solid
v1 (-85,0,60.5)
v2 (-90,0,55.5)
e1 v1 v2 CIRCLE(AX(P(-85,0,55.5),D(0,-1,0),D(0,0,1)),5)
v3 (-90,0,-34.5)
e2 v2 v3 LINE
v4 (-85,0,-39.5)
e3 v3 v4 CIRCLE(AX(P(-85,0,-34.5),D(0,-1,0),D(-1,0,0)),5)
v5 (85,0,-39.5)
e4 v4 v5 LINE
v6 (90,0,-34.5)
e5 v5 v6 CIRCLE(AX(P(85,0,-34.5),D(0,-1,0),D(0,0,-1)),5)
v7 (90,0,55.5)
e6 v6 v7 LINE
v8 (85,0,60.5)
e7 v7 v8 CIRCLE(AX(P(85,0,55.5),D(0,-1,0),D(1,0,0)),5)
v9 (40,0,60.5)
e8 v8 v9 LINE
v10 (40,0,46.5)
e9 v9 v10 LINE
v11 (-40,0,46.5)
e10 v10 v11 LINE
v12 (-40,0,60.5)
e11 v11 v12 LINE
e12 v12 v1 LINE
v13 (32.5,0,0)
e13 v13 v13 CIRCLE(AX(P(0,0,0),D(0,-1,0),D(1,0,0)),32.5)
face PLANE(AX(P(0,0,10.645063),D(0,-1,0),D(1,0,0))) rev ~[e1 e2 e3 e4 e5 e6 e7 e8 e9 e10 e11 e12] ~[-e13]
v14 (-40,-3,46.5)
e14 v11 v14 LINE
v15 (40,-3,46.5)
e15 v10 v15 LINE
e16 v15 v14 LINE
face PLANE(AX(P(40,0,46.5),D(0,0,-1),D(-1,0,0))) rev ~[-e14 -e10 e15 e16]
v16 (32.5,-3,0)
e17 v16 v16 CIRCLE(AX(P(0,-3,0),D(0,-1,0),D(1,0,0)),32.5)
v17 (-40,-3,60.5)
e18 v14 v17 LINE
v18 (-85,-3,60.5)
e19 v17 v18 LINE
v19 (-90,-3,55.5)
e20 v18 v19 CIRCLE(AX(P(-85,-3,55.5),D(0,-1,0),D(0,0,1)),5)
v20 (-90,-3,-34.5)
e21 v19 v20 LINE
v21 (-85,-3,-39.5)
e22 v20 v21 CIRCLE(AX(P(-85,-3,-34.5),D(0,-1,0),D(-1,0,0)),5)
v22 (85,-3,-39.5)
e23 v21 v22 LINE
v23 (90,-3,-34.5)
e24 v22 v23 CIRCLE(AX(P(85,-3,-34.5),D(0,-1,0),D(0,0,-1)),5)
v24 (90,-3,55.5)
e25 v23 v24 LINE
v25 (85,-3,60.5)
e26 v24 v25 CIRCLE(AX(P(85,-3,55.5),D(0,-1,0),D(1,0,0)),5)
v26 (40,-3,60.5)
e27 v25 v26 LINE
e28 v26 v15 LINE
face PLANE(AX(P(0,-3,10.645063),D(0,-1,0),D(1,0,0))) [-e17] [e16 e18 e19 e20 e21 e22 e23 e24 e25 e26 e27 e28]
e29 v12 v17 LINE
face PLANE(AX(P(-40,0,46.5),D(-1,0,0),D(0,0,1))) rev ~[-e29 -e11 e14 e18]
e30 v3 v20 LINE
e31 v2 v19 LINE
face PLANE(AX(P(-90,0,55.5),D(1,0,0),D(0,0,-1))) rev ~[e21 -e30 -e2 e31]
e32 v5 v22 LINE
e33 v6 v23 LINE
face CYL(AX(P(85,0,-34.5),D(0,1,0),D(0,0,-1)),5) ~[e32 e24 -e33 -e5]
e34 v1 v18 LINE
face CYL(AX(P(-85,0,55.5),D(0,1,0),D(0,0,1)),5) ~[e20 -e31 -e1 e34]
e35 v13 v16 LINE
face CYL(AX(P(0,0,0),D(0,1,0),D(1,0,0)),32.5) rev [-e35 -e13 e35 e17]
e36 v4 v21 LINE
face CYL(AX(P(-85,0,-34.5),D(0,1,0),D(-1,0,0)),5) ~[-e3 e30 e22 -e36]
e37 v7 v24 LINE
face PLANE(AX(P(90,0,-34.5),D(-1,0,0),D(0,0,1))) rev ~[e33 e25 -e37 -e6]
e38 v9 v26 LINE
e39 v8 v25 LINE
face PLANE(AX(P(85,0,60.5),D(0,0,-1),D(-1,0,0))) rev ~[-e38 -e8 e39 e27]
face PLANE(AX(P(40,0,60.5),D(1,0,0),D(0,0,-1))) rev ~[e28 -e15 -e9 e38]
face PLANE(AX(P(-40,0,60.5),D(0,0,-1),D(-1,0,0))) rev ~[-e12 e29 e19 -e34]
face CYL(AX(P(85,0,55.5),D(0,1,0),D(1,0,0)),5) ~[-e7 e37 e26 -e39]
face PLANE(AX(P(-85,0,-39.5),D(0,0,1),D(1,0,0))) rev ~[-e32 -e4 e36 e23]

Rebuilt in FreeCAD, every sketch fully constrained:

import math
import FreeCAD as App
import Part
import Sketcher
Q = App.Units.Quantity

doc = App.newDocument("Part")
params = doc.addObject("Spreadsheet::Sheet", "Params")
for row, (alias, value) in enumerate([
    ("sketch1_diameter", "65 mm"),
    ("sketch1_radius", "5 mm"),
    ("sketch1_width", "45 mm"),
    ("sketch1_width2", "170 mm"),
    ("sketch1_height", "90 mm"),
    ("pad1_length", "3 mm"),
    ("sketch2_diameter", "65 mm"),
    ("sketch2_radius", "5 mm"),
    ("sketch2_width", "170 mm"),
    ("sketch2_height", "90 mm"),
    ("pocket1_length", "20 mm"),
], start=1):
    params.set(f"A{row}", alias)
    params.set(f"B{row}", "=" + value)
    params.setAlias(f"B{row}", alias)

body = doc.addObject("PartDesign::Body", "Body")

sketch1 = body.newObject("Sketcher::SketchObject", "Sketch")
sketch1.AttachmentSupport = (doc.getObject("XZ_Plane"), [""])
sketch1.MapMode = "FlatFace"
sketch1.addGeometry([
    Part.LineSegment(App.Vector(-40, 60, 0), App.Vector(-85, 60, 0)),
    Part.ArcOfCircle(Part.Circle(App.Vector(-85, 56, 0), App.Vector(0, 0, 1), 5), math.radians(90), math.radians(180)),
    Part.LineSegment(App.Vector(-90, 56, 0), App.Vector(-90, -34, 0)),
    Part.ArcOfCircle(Part.Circle(App.Vector(-85, -34, 0), App.Vector(0, 0, 1), 5), math.radians(180), math.radians(270)),
    Part.LineSegment(App.Vector(-85, -40, 0), App.Vector(85, -40, 0)),
    Part.ArcOfCircle(Part.Circle(App.Vector(85, -34, 0), App.Vector(0, 0, 1), 5), math.radians(-90), math.radians(0)),
    Part.LineSegment(App.Vector(90, -34, 0), App.Vector(90, 56, 0)),
    Part.ArcOfCircle(Part.Circle(App.Vector(85, 56, 0), App.Vector(0, 0, 1), 5), math.radians(0), math.radians(90)),
    Part.LineSegment(App.Vector(85, 60, 0), App.Vector(40, 60, 0)),
    Part.LineSegment(App.Vector(40, 60, 0), App.Vector(40, 46, 0)),
    Part.LineSegment(App.Vector(40, 46, 0), App.Vector(-40, 46, 0)),
    Part.LineSegment(App.Vector(-40, 46, 0), App.Vector(-40, 60, 0)),
    Part.Circle(App.Vector(0, 0, 0), App.Vector(0, 0, 1), 32),
], False)
sketch1.addConstraint([
    Sketcher.Constraint("Tangent", 0, 2, 1, 1),
    Sketcher.Constraint("Tangent", 1, 2, 2, 1),
    Sketcher.Constraint("Tangent", 2, 2, 3, 1),
    Sketcher.Constraint("Tangent", 3, 2, 4, 1),
    Sketcher.Constraint("Tangent", 4, 2, 5, 1),
    Sketcher.Constraint("Tangent", 5, 2, 6, 1),
    Sketcher.Constraint("Tangent", 6, 2, 7, 1),
    Sketcher.Constraint("Tangent", 7, 2, 8, 1),
    Sketcher.Constraint("Coincident", 8, 2, 9, 1),
    Sketcher.Constraint("Coincident", 9, 2, 10, 1),
    Sketcher.Constraint("Coincident", 10, 2, 11, 1),
    Sketcher.Constraint("Coincident", 11, 2, 0, 1),
    Sketcher.Constraint("Horizontal", 0),
    Sketcher.Constraint("Vertical", 2),
    Sketcher.Constraint("Horizontal", 4),
    Sketcher.Constraint("Vertical", 6),
    Sketcher.Constraint("Horizontal", 8),
    Sketcher.Constraint("Vertical", 9),
    Sketcher.Constraint("Horizontal", 10),
    Sketcher.Constraint("Vertical", 11),
    Sketcher.Constraint("Coincident", 12, 3, -1, 1),
    Sketcher.Constraint("Equal", 1, 3),
    Sketcher.Constraint("Equal", 3, 5),
    Sketcher.Constraint("Equal", 5, 7),
    Sketcher.Constraint("Symmetric", 1, 3, 7, 3, -2),
    Sketcher.Constraint("Equal", 0, 8),
    Sketcher.Constraint("Diameter", 12, Q("65 mm")),
    Sketcher.Constraint("Radius", 1, Q("5 mm")),
    Sketcher.Constraint("DistanceX", 0, 2, 0, 1, Q("45 mm")),
    Sketcher.Constraint("DistanceX", 4, 1, 4, 2, Q("170 mm")),
    Sketcher.Constraint("DistanceY", 2, 2, 2, 1, Q("90 mm")),
    Sketcher.Constraint("DistanceY", 9, 2, 9, 1, Q("14 mm")),
    Sketcher.Constraint("DistanceY", -1, 1, 1, 3, Q("55.5 mm")),
])
sketch1.setExpression("Constraints[26]", "Params.sketch1_diameter")
sketch1.setExpression("Constraints[27]", "Params.sketch1_radius")
sketch1.setExpression("Constraints[28]", "Params.sketch1_width")
sketch1.setExpression("Constraints[29]", "Params.sketch1_width2")
sketch1.setExpression("Constraints[30]", "Params.sketch1_height")
pad1 = body.newObject("PartDesign::Pad", "Pad")
pad1.Profile = sketch1
pad1.setExpression("Length", "Params.pad1_length")

sketch2 = body.newObject("Sketcher::SketchObject", "Sketch001")
sketch2.AttachmentSupport = (doc.getObject("XZ_Plane"), [""])
sketch2.MapMode = "FlatFace"
sketch2.addGeometry([
    Part.ArcOfCircle(Part.Circle(App.Vector(-85, 56, 0), App.Vector(0, 0, 1), 5), math.radians(90), math.radians(180)),
    Part.LineSegment(App.Vector(-90, 56, 0), App.Vector(-90, -34, 0)),
    Part.ArcOfCircle(Part.Circle(App.Vector(-85, -34, 0), App.Vector(0, 0, 1), 5), math.radians(180), math.radians(270)),
    Part.LineSegment(App.Vector(-85, -40, 0), App.Vector(85, -40, 0)),
    Part.ArcOfCircle(Part.Circle(App.Vector(85, -34, 0), App.Vector(0, 0, 1), 5), math.radians(-90), math.radians(0)),
    Part.LineSegment(App.Vector(90, -34, 0), App.Vector(90, 56, 0)),
    Part.ArcOfCircle(Part.Circle(App.Vector(85, 56, 0), App.Vector(0, 0, 1), 5), math.radians(0), math.radians(90)),
    Part.LineSegment(App.Vector(85, 60, 0), App.Vector(-85, 60, 0)),
    Part.Circle(App.Vector(0, 0, 0), App.Vector(0, 0, 1), 32),
], False)
sketch2.addConstraint([
    Sketcher.Constraint("Tangent", 0, 2, 1, 1),
    Sketcher.Constraint("Tangent", 1, 2, 2, 1),
    Sketcher.Constraint("Tangent", 2, 2, 3, 1),
    Sketcher.Constraint("Tangent", 3, 2, 4, 1),
    Sketcher.Constraint("Tangent", 4, 2, 5, 1),
    Sketcher.Constraint("Tangent", 5, 2, 6, 1),
    Sketcher.Constraint("Tangent", 6, 2, 7, 1),
    Sketcher.Constraint("Tangent", 7, 2, 0, 1),
    Sketcher.Constraint("Vertical", 1),
    Sketcher.Constraint("Horizontal", 3),
    Sketcher.Constraint("Vertical", 5),
    Sketcher.Constraint("Horizontal", 7),
    Sketcher.Constraint("Coincident", 8, 3, -1, 1),
    Sketcher.Constraint("Equal", 0, 2),
    Sketcher.Constraint("Equal", 2, 4),
    Sketcher.Constraint("Equal", 4, 6),
    Sketcher.Constraint("Diameter", 8, Q("65 mm")),
    Sketcher.Constraint("Radius", 0, Q("5 mm")),
    Sketcher.Constraint("DistanceX", 3, 1, 3, 2, Q("170 mm")),
    Sketcher.Constraint("DistanceY", 1, 2, 1, 1, Q("90 mm")),
    Sketcher.Constraint("DistanceX", 0, 3, -1, 1, Q("85 mm")),
    Sketcher.Constraint("DistanceY", -1, 1, 0, 3, Q("55.5 mm")),
])
sketch2.setExpression("Constraints[16]", "Params.sketch2_diameter")
sketch2.setExpression("Constraints[17]", "Params.sketch2_radius")
sketch2.setExpression("Constraints[18]", "Params.sketch2_width")
sketch2.setExpression("Constraints[19]", "Params.sketch2_height")
pocket1 = body.newObject("PartDesign::Pocket", "Pocket")
pocket1.Profile = sketch2
pocket1.setExpression("Length", "Params.pocket1_length")

doc.recompute()
